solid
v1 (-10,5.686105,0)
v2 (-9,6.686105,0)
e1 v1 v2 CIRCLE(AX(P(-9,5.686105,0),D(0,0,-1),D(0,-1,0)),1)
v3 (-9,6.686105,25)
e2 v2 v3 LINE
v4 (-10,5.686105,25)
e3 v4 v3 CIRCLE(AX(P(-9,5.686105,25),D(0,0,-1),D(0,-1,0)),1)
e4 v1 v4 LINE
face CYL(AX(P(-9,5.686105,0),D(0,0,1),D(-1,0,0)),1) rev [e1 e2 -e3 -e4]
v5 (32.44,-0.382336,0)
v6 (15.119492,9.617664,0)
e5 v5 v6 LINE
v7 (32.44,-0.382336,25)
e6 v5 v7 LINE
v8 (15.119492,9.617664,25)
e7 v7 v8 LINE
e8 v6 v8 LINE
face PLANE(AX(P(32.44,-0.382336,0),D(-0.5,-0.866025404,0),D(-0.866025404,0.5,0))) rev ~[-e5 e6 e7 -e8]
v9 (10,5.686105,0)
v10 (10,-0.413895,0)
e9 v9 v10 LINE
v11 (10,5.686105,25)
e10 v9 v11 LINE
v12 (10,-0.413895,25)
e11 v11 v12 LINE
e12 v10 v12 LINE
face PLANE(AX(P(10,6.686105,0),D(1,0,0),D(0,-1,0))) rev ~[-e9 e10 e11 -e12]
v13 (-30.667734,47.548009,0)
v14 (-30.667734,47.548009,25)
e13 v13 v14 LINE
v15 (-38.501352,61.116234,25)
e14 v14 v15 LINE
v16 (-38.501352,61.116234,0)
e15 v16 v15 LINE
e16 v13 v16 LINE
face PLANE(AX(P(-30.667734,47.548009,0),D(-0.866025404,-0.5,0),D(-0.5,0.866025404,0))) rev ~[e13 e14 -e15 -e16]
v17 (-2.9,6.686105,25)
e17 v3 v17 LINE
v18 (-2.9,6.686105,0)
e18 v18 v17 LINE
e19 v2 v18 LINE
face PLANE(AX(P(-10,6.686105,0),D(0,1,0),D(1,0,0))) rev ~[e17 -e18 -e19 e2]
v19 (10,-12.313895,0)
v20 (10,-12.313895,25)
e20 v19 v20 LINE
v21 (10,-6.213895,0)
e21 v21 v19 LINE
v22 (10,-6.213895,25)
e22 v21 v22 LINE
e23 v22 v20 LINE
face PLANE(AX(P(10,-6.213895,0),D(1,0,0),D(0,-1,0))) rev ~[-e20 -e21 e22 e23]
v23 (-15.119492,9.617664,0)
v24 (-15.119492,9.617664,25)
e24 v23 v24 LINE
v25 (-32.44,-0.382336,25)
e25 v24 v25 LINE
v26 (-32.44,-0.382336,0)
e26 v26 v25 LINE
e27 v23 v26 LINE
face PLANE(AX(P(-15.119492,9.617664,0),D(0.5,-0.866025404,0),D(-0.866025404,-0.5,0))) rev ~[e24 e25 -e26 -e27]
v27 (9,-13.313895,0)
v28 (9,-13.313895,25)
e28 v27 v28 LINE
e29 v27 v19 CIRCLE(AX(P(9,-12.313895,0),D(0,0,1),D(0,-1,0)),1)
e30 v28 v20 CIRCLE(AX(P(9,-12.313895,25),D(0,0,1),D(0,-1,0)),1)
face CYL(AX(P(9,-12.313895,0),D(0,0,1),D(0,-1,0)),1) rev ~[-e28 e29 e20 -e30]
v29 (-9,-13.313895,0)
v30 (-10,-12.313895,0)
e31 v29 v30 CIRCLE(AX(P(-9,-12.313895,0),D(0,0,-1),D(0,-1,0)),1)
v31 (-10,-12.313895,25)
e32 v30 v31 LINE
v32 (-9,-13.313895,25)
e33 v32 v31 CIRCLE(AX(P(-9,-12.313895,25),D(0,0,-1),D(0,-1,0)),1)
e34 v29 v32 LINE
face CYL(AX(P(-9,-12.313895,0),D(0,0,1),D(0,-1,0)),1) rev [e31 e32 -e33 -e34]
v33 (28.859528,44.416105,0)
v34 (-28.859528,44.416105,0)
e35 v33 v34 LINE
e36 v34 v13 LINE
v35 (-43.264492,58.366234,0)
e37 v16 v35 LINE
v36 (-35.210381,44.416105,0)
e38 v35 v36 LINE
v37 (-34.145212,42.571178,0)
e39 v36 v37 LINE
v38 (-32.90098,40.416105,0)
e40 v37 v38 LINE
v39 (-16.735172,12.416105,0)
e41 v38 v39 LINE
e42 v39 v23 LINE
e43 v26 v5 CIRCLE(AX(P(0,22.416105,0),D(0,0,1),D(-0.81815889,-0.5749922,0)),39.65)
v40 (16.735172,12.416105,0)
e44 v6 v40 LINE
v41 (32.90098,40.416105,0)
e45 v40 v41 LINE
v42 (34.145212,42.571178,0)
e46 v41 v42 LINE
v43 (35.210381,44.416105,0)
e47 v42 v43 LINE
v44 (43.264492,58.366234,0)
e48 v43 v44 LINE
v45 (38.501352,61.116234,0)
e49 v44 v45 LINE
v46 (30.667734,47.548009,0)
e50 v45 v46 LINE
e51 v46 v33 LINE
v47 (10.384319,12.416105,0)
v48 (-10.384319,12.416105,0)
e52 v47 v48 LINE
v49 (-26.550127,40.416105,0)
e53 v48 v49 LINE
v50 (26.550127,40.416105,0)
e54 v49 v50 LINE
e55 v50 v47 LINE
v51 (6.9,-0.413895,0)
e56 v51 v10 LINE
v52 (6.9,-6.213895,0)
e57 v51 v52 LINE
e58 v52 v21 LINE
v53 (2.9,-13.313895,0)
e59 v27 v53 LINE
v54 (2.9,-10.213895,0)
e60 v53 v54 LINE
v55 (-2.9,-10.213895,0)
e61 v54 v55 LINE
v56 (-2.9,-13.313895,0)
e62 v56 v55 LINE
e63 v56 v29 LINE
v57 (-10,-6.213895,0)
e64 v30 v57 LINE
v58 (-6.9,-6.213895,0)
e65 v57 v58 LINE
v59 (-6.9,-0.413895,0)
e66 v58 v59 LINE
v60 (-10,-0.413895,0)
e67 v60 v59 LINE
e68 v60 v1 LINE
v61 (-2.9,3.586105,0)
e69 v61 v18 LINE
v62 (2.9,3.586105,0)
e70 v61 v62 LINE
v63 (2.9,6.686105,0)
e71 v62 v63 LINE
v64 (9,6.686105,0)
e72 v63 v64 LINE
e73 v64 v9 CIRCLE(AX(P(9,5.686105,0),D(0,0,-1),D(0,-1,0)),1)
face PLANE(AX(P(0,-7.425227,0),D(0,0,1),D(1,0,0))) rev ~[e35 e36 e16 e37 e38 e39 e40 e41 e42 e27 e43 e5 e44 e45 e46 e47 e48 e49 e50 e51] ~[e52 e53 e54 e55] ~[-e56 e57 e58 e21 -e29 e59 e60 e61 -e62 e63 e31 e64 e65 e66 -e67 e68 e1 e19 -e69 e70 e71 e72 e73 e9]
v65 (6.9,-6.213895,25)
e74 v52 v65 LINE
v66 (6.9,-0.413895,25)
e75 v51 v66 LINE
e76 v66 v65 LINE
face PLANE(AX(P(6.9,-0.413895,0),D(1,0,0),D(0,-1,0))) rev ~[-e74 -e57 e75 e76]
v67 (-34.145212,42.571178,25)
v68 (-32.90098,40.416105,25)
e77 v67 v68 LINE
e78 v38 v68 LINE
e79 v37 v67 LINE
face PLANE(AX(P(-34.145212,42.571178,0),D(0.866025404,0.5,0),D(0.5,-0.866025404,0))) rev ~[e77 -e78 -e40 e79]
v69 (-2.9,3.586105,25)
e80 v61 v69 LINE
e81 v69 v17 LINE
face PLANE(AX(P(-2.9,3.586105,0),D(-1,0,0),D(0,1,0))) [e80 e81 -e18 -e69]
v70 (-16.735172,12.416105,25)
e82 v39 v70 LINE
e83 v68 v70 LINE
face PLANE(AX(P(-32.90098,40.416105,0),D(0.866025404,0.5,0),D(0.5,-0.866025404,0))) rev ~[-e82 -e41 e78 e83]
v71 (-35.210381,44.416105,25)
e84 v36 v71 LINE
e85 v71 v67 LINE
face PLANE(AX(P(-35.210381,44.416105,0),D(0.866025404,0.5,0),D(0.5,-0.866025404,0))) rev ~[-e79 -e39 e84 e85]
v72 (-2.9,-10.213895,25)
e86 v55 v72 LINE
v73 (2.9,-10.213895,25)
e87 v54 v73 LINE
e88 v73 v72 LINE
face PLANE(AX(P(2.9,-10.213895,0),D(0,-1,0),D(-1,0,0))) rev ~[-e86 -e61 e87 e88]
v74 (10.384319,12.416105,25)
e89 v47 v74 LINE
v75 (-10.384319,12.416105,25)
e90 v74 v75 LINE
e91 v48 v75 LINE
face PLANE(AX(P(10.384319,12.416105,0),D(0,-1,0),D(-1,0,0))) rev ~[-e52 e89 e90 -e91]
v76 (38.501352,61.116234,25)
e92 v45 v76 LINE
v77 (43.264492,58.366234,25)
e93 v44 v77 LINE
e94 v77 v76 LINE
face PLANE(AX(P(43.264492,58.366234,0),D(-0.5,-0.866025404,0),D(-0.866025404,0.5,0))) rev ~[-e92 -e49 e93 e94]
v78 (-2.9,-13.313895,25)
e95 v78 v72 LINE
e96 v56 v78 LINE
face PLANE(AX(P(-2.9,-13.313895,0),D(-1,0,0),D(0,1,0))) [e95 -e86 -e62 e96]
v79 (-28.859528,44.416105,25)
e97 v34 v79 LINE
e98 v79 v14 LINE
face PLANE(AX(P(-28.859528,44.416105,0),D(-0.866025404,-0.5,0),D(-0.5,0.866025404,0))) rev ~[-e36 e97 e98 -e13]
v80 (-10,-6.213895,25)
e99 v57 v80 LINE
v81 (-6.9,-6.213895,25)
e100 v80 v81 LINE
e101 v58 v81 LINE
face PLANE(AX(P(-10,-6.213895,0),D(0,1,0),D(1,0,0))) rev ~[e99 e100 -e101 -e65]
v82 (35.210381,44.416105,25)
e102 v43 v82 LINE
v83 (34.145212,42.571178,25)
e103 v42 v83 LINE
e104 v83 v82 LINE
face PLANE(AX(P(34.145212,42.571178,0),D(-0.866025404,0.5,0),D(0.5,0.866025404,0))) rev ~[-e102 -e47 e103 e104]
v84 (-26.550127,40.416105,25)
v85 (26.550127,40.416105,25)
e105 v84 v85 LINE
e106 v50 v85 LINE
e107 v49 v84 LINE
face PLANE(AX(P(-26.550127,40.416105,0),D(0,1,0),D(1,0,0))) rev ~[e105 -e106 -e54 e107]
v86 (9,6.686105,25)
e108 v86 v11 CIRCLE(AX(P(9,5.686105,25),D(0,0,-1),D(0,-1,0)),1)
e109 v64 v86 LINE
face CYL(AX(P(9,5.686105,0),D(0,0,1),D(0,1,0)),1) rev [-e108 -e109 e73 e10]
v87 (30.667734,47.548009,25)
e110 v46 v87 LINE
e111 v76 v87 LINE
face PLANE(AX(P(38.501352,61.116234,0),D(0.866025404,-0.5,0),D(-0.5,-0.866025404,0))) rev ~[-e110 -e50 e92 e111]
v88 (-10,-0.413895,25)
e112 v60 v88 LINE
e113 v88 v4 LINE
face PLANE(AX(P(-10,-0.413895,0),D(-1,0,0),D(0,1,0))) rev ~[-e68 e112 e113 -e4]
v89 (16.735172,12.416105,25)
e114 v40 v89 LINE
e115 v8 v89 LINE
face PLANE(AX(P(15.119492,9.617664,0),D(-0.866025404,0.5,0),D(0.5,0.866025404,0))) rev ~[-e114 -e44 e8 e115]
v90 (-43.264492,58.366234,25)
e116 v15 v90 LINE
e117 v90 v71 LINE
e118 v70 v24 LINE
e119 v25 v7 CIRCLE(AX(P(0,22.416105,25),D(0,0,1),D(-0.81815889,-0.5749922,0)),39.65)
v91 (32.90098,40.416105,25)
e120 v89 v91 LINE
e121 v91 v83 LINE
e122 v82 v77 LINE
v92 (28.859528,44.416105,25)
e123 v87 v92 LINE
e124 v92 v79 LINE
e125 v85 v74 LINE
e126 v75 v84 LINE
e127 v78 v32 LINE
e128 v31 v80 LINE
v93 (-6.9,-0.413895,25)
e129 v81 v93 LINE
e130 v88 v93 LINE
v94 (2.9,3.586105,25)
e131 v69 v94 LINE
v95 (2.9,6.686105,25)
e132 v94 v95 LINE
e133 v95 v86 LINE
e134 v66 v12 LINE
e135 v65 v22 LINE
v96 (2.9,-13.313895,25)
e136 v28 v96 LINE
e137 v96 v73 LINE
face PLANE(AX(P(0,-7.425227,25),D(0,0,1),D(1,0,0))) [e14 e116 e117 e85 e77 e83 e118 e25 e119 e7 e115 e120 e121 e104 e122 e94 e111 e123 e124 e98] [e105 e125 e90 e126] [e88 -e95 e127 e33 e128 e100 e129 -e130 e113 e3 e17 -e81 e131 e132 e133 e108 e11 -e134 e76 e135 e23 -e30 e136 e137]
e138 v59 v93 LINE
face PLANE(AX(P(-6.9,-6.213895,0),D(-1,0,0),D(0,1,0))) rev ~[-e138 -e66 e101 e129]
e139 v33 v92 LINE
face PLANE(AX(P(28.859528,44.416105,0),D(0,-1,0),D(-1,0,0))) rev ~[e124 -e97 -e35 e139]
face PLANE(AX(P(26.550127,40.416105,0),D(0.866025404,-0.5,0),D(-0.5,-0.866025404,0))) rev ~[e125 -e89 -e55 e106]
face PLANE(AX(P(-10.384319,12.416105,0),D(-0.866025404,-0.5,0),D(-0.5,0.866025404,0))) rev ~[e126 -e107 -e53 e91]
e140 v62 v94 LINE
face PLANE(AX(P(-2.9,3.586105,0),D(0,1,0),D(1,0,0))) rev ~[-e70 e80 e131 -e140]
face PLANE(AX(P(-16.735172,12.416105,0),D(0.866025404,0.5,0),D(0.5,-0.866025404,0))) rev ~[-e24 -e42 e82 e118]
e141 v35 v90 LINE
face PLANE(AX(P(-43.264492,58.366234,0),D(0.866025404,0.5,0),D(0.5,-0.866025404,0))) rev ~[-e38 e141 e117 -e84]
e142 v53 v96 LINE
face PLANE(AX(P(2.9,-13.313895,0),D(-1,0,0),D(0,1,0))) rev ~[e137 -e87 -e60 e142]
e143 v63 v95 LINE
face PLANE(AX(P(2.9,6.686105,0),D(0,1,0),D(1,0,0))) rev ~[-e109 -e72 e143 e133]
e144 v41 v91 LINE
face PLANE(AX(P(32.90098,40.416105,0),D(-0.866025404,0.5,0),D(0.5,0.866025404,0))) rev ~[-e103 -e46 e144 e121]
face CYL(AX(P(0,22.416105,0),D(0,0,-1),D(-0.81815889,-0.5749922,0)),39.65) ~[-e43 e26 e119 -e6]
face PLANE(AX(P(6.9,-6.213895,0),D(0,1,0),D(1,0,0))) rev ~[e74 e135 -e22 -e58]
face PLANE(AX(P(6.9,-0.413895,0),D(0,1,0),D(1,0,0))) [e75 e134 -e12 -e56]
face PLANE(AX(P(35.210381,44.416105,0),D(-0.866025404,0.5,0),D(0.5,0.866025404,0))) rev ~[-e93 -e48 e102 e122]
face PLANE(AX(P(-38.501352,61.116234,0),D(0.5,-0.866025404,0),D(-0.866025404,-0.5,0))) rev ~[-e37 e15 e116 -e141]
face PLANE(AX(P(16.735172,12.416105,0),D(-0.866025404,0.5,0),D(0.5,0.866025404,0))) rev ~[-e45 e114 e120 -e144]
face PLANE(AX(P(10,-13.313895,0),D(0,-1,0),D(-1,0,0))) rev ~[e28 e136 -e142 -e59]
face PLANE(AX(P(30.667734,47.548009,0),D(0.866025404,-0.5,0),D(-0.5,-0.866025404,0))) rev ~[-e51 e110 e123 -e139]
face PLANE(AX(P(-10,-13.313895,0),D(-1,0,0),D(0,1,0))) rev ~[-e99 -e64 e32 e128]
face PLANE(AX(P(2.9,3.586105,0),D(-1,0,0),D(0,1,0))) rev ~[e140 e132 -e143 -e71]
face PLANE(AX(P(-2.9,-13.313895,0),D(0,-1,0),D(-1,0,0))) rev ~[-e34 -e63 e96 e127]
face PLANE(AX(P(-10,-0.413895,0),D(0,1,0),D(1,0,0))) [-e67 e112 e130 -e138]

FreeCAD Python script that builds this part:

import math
import FreeCAD as App
import Part
import Sketcher

V = App.Vector
Q = App.Units.Quantity


def edges_at(feature, points):
    """Names of the edges that pass closest to the given points."""
    edges = feature.Shape.Edges
    near = lambda p: min(range(len(edges)), key=lambda i: edges[i].distToShape(Part.Vertex(*p))[0])
    return sorted({f"Edge{near(p) + 1}" for p in points})

doc = App.newDocument("Part")
body = doc.addObject("PartDesign::Body", "Body")

sketch1 = body.newObject("Sketcher::SketchObject", "Sketch")
sketch1.AttachmentSupport = (doc.getObject("XY_Plane"), [""])
sketch1.MapMode = "FlatFace"
sketch1.addGeometry([
    Part.LineSegment(V(28.9, 44.4, 0), V(-28.9, 44.4, 0)),
    Part.LineSegment(V(-28.9, 44.4, 0), V(-30.7, 47.5, 0)),
    Part.LineSegment(V(-30.7, 47.5, 0), V(-38.5, 61.1, 0)),
    Part.LineSegment(V(-38.5, 61.1, 0), V(-43.3, 58.4, 0)),
    Part.LineSegment(V(-43.3, 58.4, 0), V(-35.2, 44.4, 0)),
    Part.LineSegment(V(-35.2, 44.4, 0), V(-34.1, 42.6, 0)),
    Part.LineSegment(V(-34.1, 42.6, 0), V(-32.9, 40.4, 0)),
    Part.LineSegment(V(-32.9, 40.4, 0), V(-16.7, 12.4, 0)),
    Part.LineSegment(V(-16.7, 12.4, 0), V(-15.1, 9.6, 0)),
    Part.LineSegment(V(-15.1, 9.6, 0), V(-32.4, -0.4, 0)),
    Part.ArcOfCircle(Part.Circle(V(0, 22.4, 0), V(0, 0, 1), 39.6), math.radians(-145), math.radians(-35)),
    Part.LineSegment(V(32.4, -0.4, 0), V(15.1, 9.6, 0)),
    Part.LineSegment(V(15.1, 9.6, 0), V(16.7, 12.4, 0)),
    Part.LineSegment(V(16.7, 12.4, 0), V(32.9, 40.4, 0)),
    Part.LineSegment(V(32.9, 40.4, 0), V(34.1, 42.6, 0)),
    Part.LineSegment(V(34.1, 42.6, 0), V(35.2, 44.4, 0)),
    Part.LineSegment(V(35.2, 44.4, 0), V(43.3, 58.4, 0)),
    Part.LineSegment(V(43.3, 58.4, 0), V(38.5, 61.1, 0)),
    Part.LineSegment(V(38.5, 61.1, 0), V(30.7, 47.5, 0)),
    Part.LineSegment(V(30.7, 47.5, 0), V(28.9, 44.4, 0)),
    Part.LineSegment(V(10, -13.3, 0), V(2.9, -13.3, 0)),
    Part.LineSegment(V(2.9, -13.3, 0), V(2.9, -10.2, 0)),
    Part.LineSegment(V(2.9, -10.2, 0), V(-2.9, -10.2, 0)),
    Part.LineSegment(V(-2.9, -10.2, 0), V(-2.9, -13.3, 0)),
    Part.LineSegment(V(-2.9, -13.3, 0), V(-10, -13.3, 0)),
    Part.LineSegment(V(-10, -13.3, 0), V(-10, -6.2, 0)),
    Part.LineSegment(V(-10, -6.2, 0), V(-6.9, -6.2, 0)),
    Part.LineSegment(V(-6.9, -6.2, 0), V(-6.9, -0.4, 0)),
    Part.LineSegment(V(-6.9, -0.4, 0), V(-10, -0.4, 0)),
    Part.LineSegment(V(-10, -0.4, 0), V(-10, 6.7, 0)),
    Part.LineSegment(V(-10, 6.7, 0), V(-2.9, 6.7, 0)),
    Part.LineSegment(V(-2.9, 6.7, 0), V(-2.9, 3.6, 0)),
    Part.LineSegment(V(-2.9, 3.6, 0), V(2.9, 3.6, 0)),
    Part.LineSegment(V(2.9, 3.6, 0), V(2.9, 6.7, 0)),
    Part.LineSegment(V(2.9, 6.7, 0), V(10, 6.7, 0)),
    Part.LineSegment(V(10, 6.7, 0), V(10, -0.4, 0)),
    Part.LineSegment(V(10, -0.4, 0), V(6.9, -0.4, 0)),
    Part.LineSegment(V(6.9, -0.4, 0), V(6.9, -6.2, 0)),
    Part.LineSegment(V(6.9, -6.2, 0), V(10, -6.2, 0)),
    Part.LineSegment(V(10, -6.2, 0), V(10, -13.3, 0)),
    Part.LineSegment(V(-10.4, 12.4, 0), V(-26.6, 40.4, 0)),
    Part.LineSegment(V(-26.6, 40.4, 0), V(26.6, 40.4, 0)),
    Part.LineSegment(V(26.6, 40.4, 0), V(10.4, 12.4, 0)),
    Part.LineSegment(V(10.4, 12.4, 0), V(-10.4, 12.4, 0)),
], False)
sketch1.addConstraint([
    Sketcher.Constraint("Coincident", 0, 2, 1, 1),
    Sketcher.Constraint("Coincident", 1, 2, 2, 1),
    Sketcher.Constraint("Coincident", 2, 2, 3, 1),
    Sketcher.Constraint("Coincident", 3, 2, 4, 1),
    Sketcher.Constraint("Coincident", 4, 2, 5, 1),
    Sketcher.Constraint("Coincident", 5, 2, 6, 1),
    Sketcher.Constraint("Coincident", 6, 2, 7, 1),
    Sketcher.Constraint("Coincident", 7, 2, 8, 1),
    Sketcher.Constraint("Coincident", 8, 2, 9, 1),
    Sketcher.Constraint("Coincident", 9, 2, 10, 1),
    Sketcher.Constraint("Coincident", 10, 2, 11, 1),
    Sketcher.Constraint("Coincident", 11, 2, 12, 1),
    Sketcher.Constraint("Coincident", 12, 2, 13, 1),
    Sketcher.Constraint("Coincident", 13, 2, 14, 1),
    Sketcher.Constraint("Coincident", 14, 2, 15, 1),
    Sketcher.Constraint("Coincident", 15, 2, 16, 1),
    Sketcher.Constraint("Coincident", 16, 2, 17, 1),
    Sketcher.Constraint("Coincident", 17, 2, 18, 1),
    Sketcher.Constraint("Coincident", 18, 2, 19, 1),
    Sketcher.Constraint("Coincident", 19, 2, 0, 1),
    Sketcher.Constraint("Coincident", 20, 2, 21, 1),
    Sketcher.Constraint("Coincident", 21, 2, 22, 1),
    Sketcher.Constraint("Coincident", 22, 2, 23, 1),
    Sketcher.Constraint("Coincident", 23, 2, 24, 1),
    Sketcher.Constraint("Coincident", 24, 2, 25, 1),
    Sketcher.Constraint("Coincident", 25, 2, 26, 1),
    Sketcher.Constraint("Coincident", 26, 2, 27, 1),
    Sketcher.Constraint("Coincident", 27, 2, 28, 1),
    Sketcher.Constraint("Coincident", 28, 2, 29, 1),
    Sketcher.Constraint("Coincident", 29, 2, 30, 1),
    Sketcher.Constraint("Coincident", 30, 2, 31, 1),
    Sketcher.Constraint("Coincident", 31, 2, 32, 1),
    Sketcher.Constraint("Coincident", 32, 2, 33, 1),
    Sketcher.Constraint("Coincident", 33, 2, 34, 1),
    Sketcher.Constraint("Coincident", 34, 2, 35, 1),
    Sketcher.Constraint("Coincident", 35, 2, 36, 1),
    Sketcher.Constraint("Coincident", 36, 2, 37, 1),
    Sketcher.Constraint("Coincident", 37, 2, 38, 1),
    Sketcher.Constraint("Coincident", 38, 2, 39, 1),
    Sketcher.Constraint("Coincident", 39, 2, 20, 1),
    Sketcher.Constraint("Coincident", 40, 2, 41, 1),
    Sketcher.Constraint("Coincident", 41, 2, 42, 1),
    Sketcher.Constraint("Coincident", 42, 2, 43, 1),
    Sketcher.Constraint("Coincident", 43, 2, 40, 1),
    Sketcher.Constraint("Horizontal", 0),
    Sketcher.Constraint("Horizontal", 20),
    Sketcher.Constraint("Vertical", 21),
    Sketcher.Constraint("Horizontal", 22),
    Sketcher.Constraint("Vertical", 23),
    Sketcher.Constraint("Horizontal", 24),
    Sketcher.Constraint("Vertical", 25),
    Sketcher.Constraint("Horizontal", 26),
    Sketcher.Constraint("Vertical", 27),
    Sketcher.Constraint("Horizontal", 28),
    Sketcher.Constraint("Vertical", 29),
    Sketcher.Constraint("Horizontal", 30),
    Sketcher.Constraint("Vertical", 31),
    Sketcher.Constraint("Horizontal", 32),
    Sketcher.Constraint("Vertical", 33),
    Sketcher.Constraint("Horizontal", 34),
    Sketcher.Constraint("Vertical", 35),
    Sketcher.Constraint("Horizontal", 36),
    Sketcher.Constraint("Vertical", 37),
    Sketcher.Constraint("Horizontal", 38),
    Sketcher.Constraint("Vertical", 39),
    Sketcher.Constraint("Horizontal", 41),
    Sketcher.Constraint("Horizontal", 43),
    Sketcher.Constraint("Symmetric", 9, 2, 10, 2, -2),
    Sketcher.Constraint("Symmetric", 8, 2, 11, 2, -2),
    Sketcher.Constraint("Symmetric", 7, 2, 12, 2, -2),
    Sketcher.Constraint("Symmetric", 6, 2, 13, 2, -2),
    Sketcher.Constraint("Symmetric", 5, 2, 14, 2, -2),
    Sketcher.Constraint("Symmetric", 4, 2, 15, 2, -2),
    Sketcher.Constraint("Symmetric", 3, 2, 16, 2, -2),
    Sketcher.Constraint("Symmetric", 2, 2, 17, 2, -2),
    Sketcher.Constraint("Symmetric", 1, 2, 18, 2, -2),
    Sketcher.Constraint("Symmetric", 20, 2, 23, 2, -2),
    Sketcher.Constraint("Symmetric", 30, 2, 33, 2, -2),
    Sketcher.Constraint("Symmetric", 28, 2, 35, 2, -2),
    Sketcher.Constraint("Symmetric", 26, 2, 37, 2, -2),
    Sketcher.Constraint("Parallel", 1, 2),
    Sketcher.Constraint("Perpendicular", 2, 3),
    Sketcher.Constraint("Perpendicular", 3, 4),
    Sketcher.Constraint("Parallel", 4, 5),
    Sketcher.Constraint("Parallel", 5, 6),
    Sketcher.Constraint("Parallel", 6, 7),
    Sketcher.Constraint("Parallel", 7, 8),
    Sketcher.Constraint("Perpendicular", 8, 9),
    Sketcher.Constraint("Parallel", 18, 19),
    Sketcher.Constraint("Perpendicular", 9, 40),
    Sketcher.Constraint("Parallel", 19, 42),
    Sketcher.Constraint("Horizontal", 0, 2, 4, 2),
    Sketcher.Constraint("Horizontal", 13, 2, 40, 2),
    Sketcher.Constraint("Horizontal", 12, 2, 42, 2),
    Sketcher.Constraint("Vertical", 25, 2, 28, 2),
    Sketcher.Constraint("Vertical", 23, 2, 30, 2),
    Sketcher.Constraint("Vertical", 35, 2, 38, 2),
    Sketcher.Constraint("Equal", 38, 21),
    Sketcher.Constraint("Equal", 34, 25),
    Sketcher.Constraint("Equal", 32, 27),
    Sketcher.Constraint("Equal", 25, 29),
    Sketcher.Constraint("Equal", 23, 31),
    Sketcher.Constraint("Angle", 1, Q("120 deg")),
    Sketcher.Constraint("Radius", 10, 39.65),
    Sketcher.Constraint("Distance", 9, 20.0),
    Sketcher.Constraint("DistanceX", 20, 2, 20, 1, 7.1),
    Sketcher.Constraint("DistanceX", 22, 2, 22, 1, 5.8),
    Sketcher.Constraint("DistanceX", 26, 1, 26, 2, 3.1),
    Sketcher.Constraint("DistanceY", 10, 3, 0, 2, 22.0),
    Sketcher.Constraint("DistanceY", 6, 2, 4, 2, 4.0),
    Sketcher.Constraint("DistanceY", 7, 2, 10, 3, 10.0),
    Sketcher.Constraint("Distance", 3, 5.5),
    Sketcher.Constraint("DistanceX", 9, 2, -1, 1, 32.44),
    Sketcher.Constraint("DistanceY", 20, 2, 12, 2, 25.73),
    Sketcher.Constraint("DistanceX", 43, 2, 43, 1, 20.768639),
    Sketcher.Constraint("DistanceX", 0, 2, 40, 2, 2.309401),
    Sketcher.Constraint("Distance", 1, 3.616411),
    Sketcher.Constraint("Distance", 4, 16.108222),
    Sketcher.Constraint("DistanceY", -1, 1, 1, 2, 47.548009),
    Sketcher.Constraint("DistanceY", -1, 1, 5, 2, 42.571178),
])
pad1 = body.newObject("PartDesign::Pad", "Pad")
pad1.Profile = sketch1
pad1.Length = 25
doc.recompute()

fillet = body.newObject("PartDesign::Fillet", "Fillet")
fillet.Base = (pad1, edges_at(pad1, [
    (-10, -13.314, 12.5),
    (-10, 6.686, 12.5),
    (10, -13.314, 12.5),
    (10, 6.686, 12.5),
]))
fillet.Radius = 1

doc.recompute()
